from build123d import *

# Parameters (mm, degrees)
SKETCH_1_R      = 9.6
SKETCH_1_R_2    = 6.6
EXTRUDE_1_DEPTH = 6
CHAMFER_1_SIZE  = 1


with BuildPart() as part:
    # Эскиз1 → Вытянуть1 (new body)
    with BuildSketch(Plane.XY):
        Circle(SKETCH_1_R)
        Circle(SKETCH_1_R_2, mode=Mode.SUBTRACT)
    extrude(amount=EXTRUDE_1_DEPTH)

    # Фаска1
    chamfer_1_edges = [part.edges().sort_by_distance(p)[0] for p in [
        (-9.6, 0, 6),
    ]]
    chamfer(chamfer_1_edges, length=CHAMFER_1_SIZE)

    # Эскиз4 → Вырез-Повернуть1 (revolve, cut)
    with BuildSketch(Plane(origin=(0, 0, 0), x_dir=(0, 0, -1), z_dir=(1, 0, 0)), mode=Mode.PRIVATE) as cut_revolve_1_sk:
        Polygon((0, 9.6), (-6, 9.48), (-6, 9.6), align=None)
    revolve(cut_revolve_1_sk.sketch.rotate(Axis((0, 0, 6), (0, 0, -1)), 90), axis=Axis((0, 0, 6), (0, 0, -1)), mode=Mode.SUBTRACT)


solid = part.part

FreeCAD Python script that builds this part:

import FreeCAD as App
import Part
import Sketcher

V = App.Vector


def edges_at(feature, points):
    """Names of the edges that pass closest to the given points."""
    edges = feature.Shape.Edges
    near = lambda p: min(range(len(edges)), key=lambda i: edges[i].distToShape(Part.Vertex(*p))[0])
    return sorted({f"Edge{near(p) + 1}" for p in points})


def add_polygon(sketch, points):
    """Adds a closed chain of lines whose ends are joined by coincident constraints."""
    first, n = sketch.GeometryCount, len(points)
    for a, b in zip(points, points[1:] + points[:1]):
        sketch.addGeometry(Part.LineSegment(App.Vector(*a, 0), App.Vector(*b, 0)), False)
    for i in range(n):
        sketch.addConstraint(Sketcher.Constraint("Coincident", first + i, 2, first + (i + 1) % n, 1))

doc = App.newDocument("Part")
body = doc.addObject("PartDesign::Body", "Body")

sketch1 = doc.addObject("Sketcher::SketchObject", "Sketch")
body.addObject(sketch1)
sketch1.AttachmentSupport = (doc.XY_Plane, [""])
sketch1.MapMode = "FlatFace"
sketch1.addGeometry([
    Part.Circle(V(0, 0, 0), V(0, 0, 1), 9.6),
    Part.Circle(V(0, 0, 0), V(0, 0, 1), 6.6),
], False)
sketch1.addConstraint([
    Sketcher.Constraint("Coincident", 0, 3, -1, 1),
    Sketcher.Constraint("Coincident", 1, 3, -1, 1),
    Sketcher.Constraint("Diameter", 0, 19.2),
    Sketcher.Constraint("Diameter", 1, 13.2),
])
pad1 = doc.addObject("PartDesign::Pad", "Pad")
body.addObject(pad1)
pad1.Profile = sketch1
pad1.Length = 6
doc.recompute()

chamfer = doc.addObject("PartDesign::Chamfer", "Chamfer")
body.addObject(chamfer)
chamfer.Base = (pad1, edges_at(pad1, [(-9.6, 0, 6)]))
chamfer.Size = 1

sketch2 = doc.addObject("Sketcher::SketchObject", "Sketch001")
body.addObject(sketch2)
sketch2.AttachmentSupport = (doc.YZ_Plane, [""])
sketch2.MapMode = "FlatFace"
add_polygon(sketch2, [(9.48, 6), (9.6, 0), (9.6, 6)])
sketch2.addConstraint([
    Sketcher.Constraint("Vertical", 1),
    Sketcher.Constraint("Horizontal", 2),
    Sketcher.Constraint("PointOnObject", 0, 2, -1),
    Sketcher.Constraint("DistanceY", 1, 1, 1, 2, 6.0),
    Sketcher.Constraint("DistanceX", 2, 2, 2, 1, 0.12),
    Sketcher.Constraint("DistanceX", -1, 1, 0, 2, 9.6),
])
groove = doc.addObject("PartDesign::Groove", "Groove")
body.addObject(groove)
groove.Profile = sketch2
groove.ReferenceAxis = (sketch2, ["V_Axis"])
groove.Angle = 360

doc.recompute()
